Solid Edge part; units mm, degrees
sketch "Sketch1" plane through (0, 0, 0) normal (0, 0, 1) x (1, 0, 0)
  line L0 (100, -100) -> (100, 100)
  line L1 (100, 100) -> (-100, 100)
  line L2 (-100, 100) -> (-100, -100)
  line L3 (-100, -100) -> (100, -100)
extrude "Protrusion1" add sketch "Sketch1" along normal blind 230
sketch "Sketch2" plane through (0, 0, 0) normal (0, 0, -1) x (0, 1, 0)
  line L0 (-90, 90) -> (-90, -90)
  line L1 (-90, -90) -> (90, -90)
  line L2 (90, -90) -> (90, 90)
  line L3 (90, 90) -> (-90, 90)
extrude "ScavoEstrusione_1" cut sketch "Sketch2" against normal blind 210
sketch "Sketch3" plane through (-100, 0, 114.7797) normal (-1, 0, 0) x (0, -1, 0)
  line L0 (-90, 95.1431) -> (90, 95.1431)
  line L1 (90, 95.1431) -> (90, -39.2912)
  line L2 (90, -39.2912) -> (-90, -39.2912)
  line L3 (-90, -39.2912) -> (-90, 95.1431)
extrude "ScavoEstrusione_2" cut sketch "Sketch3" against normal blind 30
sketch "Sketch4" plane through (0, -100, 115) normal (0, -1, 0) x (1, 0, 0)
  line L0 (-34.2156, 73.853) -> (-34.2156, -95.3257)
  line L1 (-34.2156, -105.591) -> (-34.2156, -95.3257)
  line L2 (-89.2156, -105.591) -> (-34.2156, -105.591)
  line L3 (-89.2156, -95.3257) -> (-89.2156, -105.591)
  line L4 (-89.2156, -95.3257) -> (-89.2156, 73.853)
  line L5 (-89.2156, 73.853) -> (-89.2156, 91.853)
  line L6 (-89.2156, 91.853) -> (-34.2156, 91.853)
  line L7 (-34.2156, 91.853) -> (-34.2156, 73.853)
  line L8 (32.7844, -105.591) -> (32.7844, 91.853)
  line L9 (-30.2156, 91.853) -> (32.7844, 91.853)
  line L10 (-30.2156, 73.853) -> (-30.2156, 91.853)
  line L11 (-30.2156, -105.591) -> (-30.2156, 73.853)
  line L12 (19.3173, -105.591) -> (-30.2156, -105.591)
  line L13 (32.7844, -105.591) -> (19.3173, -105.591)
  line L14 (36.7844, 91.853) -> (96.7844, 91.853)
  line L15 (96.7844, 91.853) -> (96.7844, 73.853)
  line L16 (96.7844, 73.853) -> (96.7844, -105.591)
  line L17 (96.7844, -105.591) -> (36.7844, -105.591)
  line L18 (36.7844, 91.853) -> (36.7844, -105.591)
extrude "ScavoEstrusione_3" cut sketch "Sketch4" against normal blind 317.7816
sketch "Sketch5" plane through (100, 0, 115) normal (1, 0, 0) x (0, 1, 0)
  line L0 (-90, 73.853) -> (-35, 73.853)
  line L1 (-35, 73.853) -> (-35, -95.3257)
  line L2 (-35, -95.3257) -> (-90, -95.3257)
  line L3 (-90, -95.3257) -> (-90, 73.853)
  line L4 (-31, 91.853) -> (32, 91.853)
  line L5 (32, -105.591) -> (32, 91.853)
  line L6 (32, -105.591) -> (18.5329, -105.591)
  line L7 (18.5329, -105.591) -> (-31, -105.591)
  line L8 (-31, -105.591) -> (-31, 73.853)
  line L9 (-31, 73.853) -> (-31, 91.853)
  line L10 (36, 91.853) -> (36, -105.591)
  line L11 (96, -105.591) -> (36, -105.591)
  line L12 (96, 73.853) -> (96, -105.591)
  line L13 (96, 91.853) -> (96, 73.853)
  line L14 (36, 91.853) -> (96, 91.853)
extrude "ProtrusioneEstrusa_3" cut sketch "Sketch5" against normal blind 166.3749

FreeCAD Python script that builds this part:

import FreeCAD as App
import Part
import Sketcher

V = App.Vector
Q = App.Units.Quantity


def add_polygon(sketch, points):
    """Adds a closed chain of lines whose ends are joined by coincident constraints."""
    first, n = sketch.GeometryCount, len(points)
    for a, b in zip(points, points[1:] + points[:1]):
        sketch.addGeometry(Part.LineSegment(App.Vector(*a, 0), App.Vector(*b, 0)), False)
    for i in range(n):
        sketch.addConstraint(Sketcher.Constraint("Coincident", first + i, 2, first + (i + 1) % n, 1))

doc = App.newDocument("Part")
body = doc.addObject("PartDesign::Body", "Body")

# Sketch on XY plane
sketch1 = doc.addObject("Sketcher::SketchObject", "Sketch")
body.addObject(sketch1)
sketch1.AttachmentSupport = (doc.XY_Plane, [""])
sketch1.MapMode = "FlatFace"
add_polygon(sketch1, [(-100, -100), (100, -100), (100, 100), (-100, 100)])  # lines 0-3
sketch1.addConstraint([
    Sketcher.Constraint("Horizontal", 0),
    Sketcher.Constraint("Vertical", 1),
    Sketcher.Constraint("Horizontal", 2),
    Sketcher.Constraint("Vertical", 3),
    Sketcher.Constraint("Symmetric", 0, 2, 2, 2, -1, 1),
    Sketcher.Constraint("Equal", 2, 1),
    Sketcher.Constraint("DistanceX", 0, 1, 0, 2, Q("200 mm")),
])
pad1 = doc.addObject("PartDesign::Pad", "Pad")
body.addObject(pad1)
pad1.Profile = sketch1
pad1.Length = 230

# Sketch on XY plane
sketch2 = doc.addObject("Sketcher::SketchObject", "Sketch001")
body.addObject(sketch2)
sketch2.AttachmentSupport = (doc.XY_Plane, [""])
sketch2.MapMode = "FlatFace"
add_polygon(sketch2, [(90, 90), (90, -90), (-90, -90), (-90, 90)])  # lines 0-3
sketch2.addConstraint([
    Sketcher.Constraint("Vertical", 0),
    Sketcher.Constraint("Horizontal", 1),
    Sketcher.Constraint("Vertical", 2),
    Sketcher.Constraint("Horizontal", 3),
    Sketcher.Constraint("Symmetric", 0, 2, 2, 2, -1, 1),
    Sketcher.Constraint("Equal", 3, 0),
    Sketcher.Constraint("DistanceX", 1, 2, 1, 1, Q("180 mm")),
])
pocket1 = doc.addObject("PartDesign::Pocket", "Pocket")
body.addObject(pocket1)
pocket1.Profile = sketch2
pocket1.Length = 210
pocket1.Reversed = True

# Sketch on YZ plane
sketch3 = doc.addObject("Sketcher::SketchObject", "Sketch002")
body.addObject(sketch3)
sketch3.AttachmentSupport = (doc.YZ_Plane, [""])
sketch3.MapMode = "FlatFace"
sketch3.AttachmentOffset = App.Placement(V(0, 0, -100), App.Rotation())
add_polygon(sketch3, [(-90, 210), (90, 210), (90, 75), (-90, 75)])  # lines 0-3
sketch3.addConstraint([
    Sketcher.Constraint("Horizontal", 0),
    Sketcher.Constraint("Vertical", 1),
    Sketcher.Constraint("Horizontal", 2),
    Sketcher.Constraint("Vertical", 3),
    Sketcher.Constraint("DistanceX", 0, 1, 0, 2, Q("180 mm")),
    Sketcher.Constraint("DistanceX", -1, 1, 0, 2, Q("90 mm")),
    Sketcher.Constraint("DistanceY", 1, 2, 1, 1, Q("134.4343 mm")),
    Sketcher.Constraint("DistanceY", -1, 1, 0, 2, Q("209.9228 mm")),
])
pocket2 = doc.addObject("PartDesign::Pocket", "Pocket001")
body.addObject(pocket2)
pocket2.Profile = sketch3
pocket2.Length = 30
pocket2.Reversed = True

# Sketch on XZ plane
sketch4 = doc.addObject("Sketcher::SketchObject", "Sketch003")
body.addObject(sketch4)
sketch4.AttachmentSupport = (doc.XZ_Plane, [""])
sketch4.MapMode = "FlatFace"
sketch4.AttachmentOffset = App.Placement(V(0, 0, 100), App.Rotation())
add_polygon(sketch4, [(-34, 9), (-34, 207), (-89, 207), (-89, 9)])  # lines 0-3
add_polygon(sketch4, [(-30, 9), (33, 9), (33, 207), (-30, 207)])  # lines 4-7
add_polygon(sketch4, [(97, 207), (37, 207), (37, 9), (97, 9)])  # lines 8-11
sketch4.addConstraint([
    Sketcher.Constraint("Vertical", 0),
    Sketcher.Constraint("Horizontal", 1),
    Sketcher.Constraint("Vertical", 2),
    Sketcher.Constraint("Horizontal", 3),
    Sketcher.Constraint("Horizontal", 4),
    Sketcher.Constraint("Vertical", 5),
    Sketcher.Constraint("Horizontal", 6),
    Sketcher.Constraint("Vertical", 7),
    Sketcher.Constraint("Horizontal", 8),
    Sketcher.Constraint("Vertical", 9),
    Sketcher.Constraint("Horizontal", 10),
    Sketcher.Constraint("Vertical", 11),
    Sketcher.Constraint("Horizontal", 3, 2, 4, 2),
    Sketcher.Constraint("Horizontal", 1, 2, 5, 2),
    Sketcher.Constraint("Horizontal", 6, 2, 8, 2),
    Sketcher.Constraint("Horizontal", 7, 2, 9, 2),
    Sketcher.Constraint("DistanceX", 1, 2, 1, 1, Q("55 mm")),
    Sketcher.Constraint("DistanceX", 4, 1, 4, 2, Q("63 mm")),
    Sketcher.Constraint("DistanceX", 8, 2, 8, 1, Q("60 mm")),
    Sketcher.Constraint("DistanceX", 3, 2, 4, 2, Q("67 mm")),
    Sketcher.Constraint("DistanceX", 5, 2, 8, 2, Q("4 mm")),
    Sketcher.Constraint("DistanceY", 0, 1, 0, 2, Q("197.444 mm")),
    Sketcher.Constraint("DistanceY", -1, 1, 0, 2, Q("206.853 mm")),
    Sketcher.Constraint("DistanceX", 0, 2, -1, 1, Q("34.2156 mm")),
])
pocket3 = doc.addObject("PartDesign::Pocket", "Pocket002")
body.addObject(pocket3)
pocket3.Profile = sketch4
pocket3.Length = 317.7816

# Sketch on YZ plane
sketch5 = doc.addObject("Sketcher::SketchObject", "Sketch004")
body.addObject(sketch5)
sketch5.AttachmentSupport = (doc.YZ_Plane, [""])
sketch5.MapMode = "FlatFace"
sketch5.AttachmentOffset = App.Placement(V(0, 0, 100), App.Rotation())
add_polygon(sketch5, [(-35, 189), (-90, 189), (-90, 20), (-35, 20)])  # lines 0-3
add_polygon(sketch5, [(32, 207), (-31, 207), (-31, 9), (32, 9)])  # lines 4-7
add_polygon(sketch5, [(96, 207), (36, 207), (36, 9), (96, 9)])  # lines 8-11
sketch5.addConstraint([
    Sketcher.Constraint("Horizontal", 0),
    Sketcher.Constraint("Vertical", 1),
    Sketcher.Constraint("Horizontal", 2),
    Sketcher.Constraint("Vertical", 3),
    Sketcher.Constraint("Horizontal", 4),
    Sketcher.Constraint("Vertical", 5),
    Sketcher.Constraint("Horizontal", 6),
    Sketcher.Constraint("Vertical", 7),
    Sketcher.Constraint("Horizontal", 8),
    Sketcher.Constraint("Vertical", 9),
    Sketcher.Constraint("Horizontal", 10),
    Sketcher.Constraint("Vertical", 11),
    Sketcher.Constraint("Horizontal", 7, 2, 8, 2),
    Sketcher.Constraint("Horizontal", 6, 2, 9, 2),
    Sketcher.Constraint("DistanceX", 0, 2, 0, 1, Q("55 mm")),
    Sketcher.Constraint("DistanceX", 4, 2, 4, 1, Q("63 mm")),
    Sketcher.Constraint("DistanceX", 8, 2, 8, 1, Q("60 mm")),
    Sketcher.Constraint("DistanceX", 0, 2, -1, 1, Q("90 mm")),
    Sketcher.Constraint("DistanceX", 4, 2, -1, 1, Q("31 mm")),
    Sketcher.Constraint("DistanceX", -1, 1, 8, 2, Q("36 mm")),
    Sketcher.Constraint("DistanceY", 3, 2, 4, 2, Q("18 mm")),
    Sketcher.Constraint("DistanceY", 5, 2, 5, 1, Q("197.444 mm")),
    Sketcher.Constraint("DistanceY", 1, 2, 1, 1, Q("169.1787 mm")),
    Sketcher.Constraint("DistanceY", -1, 1, 0, 2, Q("188.853 mm")),
])
pocket4 = doc.addObject("PartDesign::Pocket", "Pocket003")
body.addObject(pocket4)
pocket4.Profile = sketch5
pocket4.Length = 166.3749

doc.recompute()
